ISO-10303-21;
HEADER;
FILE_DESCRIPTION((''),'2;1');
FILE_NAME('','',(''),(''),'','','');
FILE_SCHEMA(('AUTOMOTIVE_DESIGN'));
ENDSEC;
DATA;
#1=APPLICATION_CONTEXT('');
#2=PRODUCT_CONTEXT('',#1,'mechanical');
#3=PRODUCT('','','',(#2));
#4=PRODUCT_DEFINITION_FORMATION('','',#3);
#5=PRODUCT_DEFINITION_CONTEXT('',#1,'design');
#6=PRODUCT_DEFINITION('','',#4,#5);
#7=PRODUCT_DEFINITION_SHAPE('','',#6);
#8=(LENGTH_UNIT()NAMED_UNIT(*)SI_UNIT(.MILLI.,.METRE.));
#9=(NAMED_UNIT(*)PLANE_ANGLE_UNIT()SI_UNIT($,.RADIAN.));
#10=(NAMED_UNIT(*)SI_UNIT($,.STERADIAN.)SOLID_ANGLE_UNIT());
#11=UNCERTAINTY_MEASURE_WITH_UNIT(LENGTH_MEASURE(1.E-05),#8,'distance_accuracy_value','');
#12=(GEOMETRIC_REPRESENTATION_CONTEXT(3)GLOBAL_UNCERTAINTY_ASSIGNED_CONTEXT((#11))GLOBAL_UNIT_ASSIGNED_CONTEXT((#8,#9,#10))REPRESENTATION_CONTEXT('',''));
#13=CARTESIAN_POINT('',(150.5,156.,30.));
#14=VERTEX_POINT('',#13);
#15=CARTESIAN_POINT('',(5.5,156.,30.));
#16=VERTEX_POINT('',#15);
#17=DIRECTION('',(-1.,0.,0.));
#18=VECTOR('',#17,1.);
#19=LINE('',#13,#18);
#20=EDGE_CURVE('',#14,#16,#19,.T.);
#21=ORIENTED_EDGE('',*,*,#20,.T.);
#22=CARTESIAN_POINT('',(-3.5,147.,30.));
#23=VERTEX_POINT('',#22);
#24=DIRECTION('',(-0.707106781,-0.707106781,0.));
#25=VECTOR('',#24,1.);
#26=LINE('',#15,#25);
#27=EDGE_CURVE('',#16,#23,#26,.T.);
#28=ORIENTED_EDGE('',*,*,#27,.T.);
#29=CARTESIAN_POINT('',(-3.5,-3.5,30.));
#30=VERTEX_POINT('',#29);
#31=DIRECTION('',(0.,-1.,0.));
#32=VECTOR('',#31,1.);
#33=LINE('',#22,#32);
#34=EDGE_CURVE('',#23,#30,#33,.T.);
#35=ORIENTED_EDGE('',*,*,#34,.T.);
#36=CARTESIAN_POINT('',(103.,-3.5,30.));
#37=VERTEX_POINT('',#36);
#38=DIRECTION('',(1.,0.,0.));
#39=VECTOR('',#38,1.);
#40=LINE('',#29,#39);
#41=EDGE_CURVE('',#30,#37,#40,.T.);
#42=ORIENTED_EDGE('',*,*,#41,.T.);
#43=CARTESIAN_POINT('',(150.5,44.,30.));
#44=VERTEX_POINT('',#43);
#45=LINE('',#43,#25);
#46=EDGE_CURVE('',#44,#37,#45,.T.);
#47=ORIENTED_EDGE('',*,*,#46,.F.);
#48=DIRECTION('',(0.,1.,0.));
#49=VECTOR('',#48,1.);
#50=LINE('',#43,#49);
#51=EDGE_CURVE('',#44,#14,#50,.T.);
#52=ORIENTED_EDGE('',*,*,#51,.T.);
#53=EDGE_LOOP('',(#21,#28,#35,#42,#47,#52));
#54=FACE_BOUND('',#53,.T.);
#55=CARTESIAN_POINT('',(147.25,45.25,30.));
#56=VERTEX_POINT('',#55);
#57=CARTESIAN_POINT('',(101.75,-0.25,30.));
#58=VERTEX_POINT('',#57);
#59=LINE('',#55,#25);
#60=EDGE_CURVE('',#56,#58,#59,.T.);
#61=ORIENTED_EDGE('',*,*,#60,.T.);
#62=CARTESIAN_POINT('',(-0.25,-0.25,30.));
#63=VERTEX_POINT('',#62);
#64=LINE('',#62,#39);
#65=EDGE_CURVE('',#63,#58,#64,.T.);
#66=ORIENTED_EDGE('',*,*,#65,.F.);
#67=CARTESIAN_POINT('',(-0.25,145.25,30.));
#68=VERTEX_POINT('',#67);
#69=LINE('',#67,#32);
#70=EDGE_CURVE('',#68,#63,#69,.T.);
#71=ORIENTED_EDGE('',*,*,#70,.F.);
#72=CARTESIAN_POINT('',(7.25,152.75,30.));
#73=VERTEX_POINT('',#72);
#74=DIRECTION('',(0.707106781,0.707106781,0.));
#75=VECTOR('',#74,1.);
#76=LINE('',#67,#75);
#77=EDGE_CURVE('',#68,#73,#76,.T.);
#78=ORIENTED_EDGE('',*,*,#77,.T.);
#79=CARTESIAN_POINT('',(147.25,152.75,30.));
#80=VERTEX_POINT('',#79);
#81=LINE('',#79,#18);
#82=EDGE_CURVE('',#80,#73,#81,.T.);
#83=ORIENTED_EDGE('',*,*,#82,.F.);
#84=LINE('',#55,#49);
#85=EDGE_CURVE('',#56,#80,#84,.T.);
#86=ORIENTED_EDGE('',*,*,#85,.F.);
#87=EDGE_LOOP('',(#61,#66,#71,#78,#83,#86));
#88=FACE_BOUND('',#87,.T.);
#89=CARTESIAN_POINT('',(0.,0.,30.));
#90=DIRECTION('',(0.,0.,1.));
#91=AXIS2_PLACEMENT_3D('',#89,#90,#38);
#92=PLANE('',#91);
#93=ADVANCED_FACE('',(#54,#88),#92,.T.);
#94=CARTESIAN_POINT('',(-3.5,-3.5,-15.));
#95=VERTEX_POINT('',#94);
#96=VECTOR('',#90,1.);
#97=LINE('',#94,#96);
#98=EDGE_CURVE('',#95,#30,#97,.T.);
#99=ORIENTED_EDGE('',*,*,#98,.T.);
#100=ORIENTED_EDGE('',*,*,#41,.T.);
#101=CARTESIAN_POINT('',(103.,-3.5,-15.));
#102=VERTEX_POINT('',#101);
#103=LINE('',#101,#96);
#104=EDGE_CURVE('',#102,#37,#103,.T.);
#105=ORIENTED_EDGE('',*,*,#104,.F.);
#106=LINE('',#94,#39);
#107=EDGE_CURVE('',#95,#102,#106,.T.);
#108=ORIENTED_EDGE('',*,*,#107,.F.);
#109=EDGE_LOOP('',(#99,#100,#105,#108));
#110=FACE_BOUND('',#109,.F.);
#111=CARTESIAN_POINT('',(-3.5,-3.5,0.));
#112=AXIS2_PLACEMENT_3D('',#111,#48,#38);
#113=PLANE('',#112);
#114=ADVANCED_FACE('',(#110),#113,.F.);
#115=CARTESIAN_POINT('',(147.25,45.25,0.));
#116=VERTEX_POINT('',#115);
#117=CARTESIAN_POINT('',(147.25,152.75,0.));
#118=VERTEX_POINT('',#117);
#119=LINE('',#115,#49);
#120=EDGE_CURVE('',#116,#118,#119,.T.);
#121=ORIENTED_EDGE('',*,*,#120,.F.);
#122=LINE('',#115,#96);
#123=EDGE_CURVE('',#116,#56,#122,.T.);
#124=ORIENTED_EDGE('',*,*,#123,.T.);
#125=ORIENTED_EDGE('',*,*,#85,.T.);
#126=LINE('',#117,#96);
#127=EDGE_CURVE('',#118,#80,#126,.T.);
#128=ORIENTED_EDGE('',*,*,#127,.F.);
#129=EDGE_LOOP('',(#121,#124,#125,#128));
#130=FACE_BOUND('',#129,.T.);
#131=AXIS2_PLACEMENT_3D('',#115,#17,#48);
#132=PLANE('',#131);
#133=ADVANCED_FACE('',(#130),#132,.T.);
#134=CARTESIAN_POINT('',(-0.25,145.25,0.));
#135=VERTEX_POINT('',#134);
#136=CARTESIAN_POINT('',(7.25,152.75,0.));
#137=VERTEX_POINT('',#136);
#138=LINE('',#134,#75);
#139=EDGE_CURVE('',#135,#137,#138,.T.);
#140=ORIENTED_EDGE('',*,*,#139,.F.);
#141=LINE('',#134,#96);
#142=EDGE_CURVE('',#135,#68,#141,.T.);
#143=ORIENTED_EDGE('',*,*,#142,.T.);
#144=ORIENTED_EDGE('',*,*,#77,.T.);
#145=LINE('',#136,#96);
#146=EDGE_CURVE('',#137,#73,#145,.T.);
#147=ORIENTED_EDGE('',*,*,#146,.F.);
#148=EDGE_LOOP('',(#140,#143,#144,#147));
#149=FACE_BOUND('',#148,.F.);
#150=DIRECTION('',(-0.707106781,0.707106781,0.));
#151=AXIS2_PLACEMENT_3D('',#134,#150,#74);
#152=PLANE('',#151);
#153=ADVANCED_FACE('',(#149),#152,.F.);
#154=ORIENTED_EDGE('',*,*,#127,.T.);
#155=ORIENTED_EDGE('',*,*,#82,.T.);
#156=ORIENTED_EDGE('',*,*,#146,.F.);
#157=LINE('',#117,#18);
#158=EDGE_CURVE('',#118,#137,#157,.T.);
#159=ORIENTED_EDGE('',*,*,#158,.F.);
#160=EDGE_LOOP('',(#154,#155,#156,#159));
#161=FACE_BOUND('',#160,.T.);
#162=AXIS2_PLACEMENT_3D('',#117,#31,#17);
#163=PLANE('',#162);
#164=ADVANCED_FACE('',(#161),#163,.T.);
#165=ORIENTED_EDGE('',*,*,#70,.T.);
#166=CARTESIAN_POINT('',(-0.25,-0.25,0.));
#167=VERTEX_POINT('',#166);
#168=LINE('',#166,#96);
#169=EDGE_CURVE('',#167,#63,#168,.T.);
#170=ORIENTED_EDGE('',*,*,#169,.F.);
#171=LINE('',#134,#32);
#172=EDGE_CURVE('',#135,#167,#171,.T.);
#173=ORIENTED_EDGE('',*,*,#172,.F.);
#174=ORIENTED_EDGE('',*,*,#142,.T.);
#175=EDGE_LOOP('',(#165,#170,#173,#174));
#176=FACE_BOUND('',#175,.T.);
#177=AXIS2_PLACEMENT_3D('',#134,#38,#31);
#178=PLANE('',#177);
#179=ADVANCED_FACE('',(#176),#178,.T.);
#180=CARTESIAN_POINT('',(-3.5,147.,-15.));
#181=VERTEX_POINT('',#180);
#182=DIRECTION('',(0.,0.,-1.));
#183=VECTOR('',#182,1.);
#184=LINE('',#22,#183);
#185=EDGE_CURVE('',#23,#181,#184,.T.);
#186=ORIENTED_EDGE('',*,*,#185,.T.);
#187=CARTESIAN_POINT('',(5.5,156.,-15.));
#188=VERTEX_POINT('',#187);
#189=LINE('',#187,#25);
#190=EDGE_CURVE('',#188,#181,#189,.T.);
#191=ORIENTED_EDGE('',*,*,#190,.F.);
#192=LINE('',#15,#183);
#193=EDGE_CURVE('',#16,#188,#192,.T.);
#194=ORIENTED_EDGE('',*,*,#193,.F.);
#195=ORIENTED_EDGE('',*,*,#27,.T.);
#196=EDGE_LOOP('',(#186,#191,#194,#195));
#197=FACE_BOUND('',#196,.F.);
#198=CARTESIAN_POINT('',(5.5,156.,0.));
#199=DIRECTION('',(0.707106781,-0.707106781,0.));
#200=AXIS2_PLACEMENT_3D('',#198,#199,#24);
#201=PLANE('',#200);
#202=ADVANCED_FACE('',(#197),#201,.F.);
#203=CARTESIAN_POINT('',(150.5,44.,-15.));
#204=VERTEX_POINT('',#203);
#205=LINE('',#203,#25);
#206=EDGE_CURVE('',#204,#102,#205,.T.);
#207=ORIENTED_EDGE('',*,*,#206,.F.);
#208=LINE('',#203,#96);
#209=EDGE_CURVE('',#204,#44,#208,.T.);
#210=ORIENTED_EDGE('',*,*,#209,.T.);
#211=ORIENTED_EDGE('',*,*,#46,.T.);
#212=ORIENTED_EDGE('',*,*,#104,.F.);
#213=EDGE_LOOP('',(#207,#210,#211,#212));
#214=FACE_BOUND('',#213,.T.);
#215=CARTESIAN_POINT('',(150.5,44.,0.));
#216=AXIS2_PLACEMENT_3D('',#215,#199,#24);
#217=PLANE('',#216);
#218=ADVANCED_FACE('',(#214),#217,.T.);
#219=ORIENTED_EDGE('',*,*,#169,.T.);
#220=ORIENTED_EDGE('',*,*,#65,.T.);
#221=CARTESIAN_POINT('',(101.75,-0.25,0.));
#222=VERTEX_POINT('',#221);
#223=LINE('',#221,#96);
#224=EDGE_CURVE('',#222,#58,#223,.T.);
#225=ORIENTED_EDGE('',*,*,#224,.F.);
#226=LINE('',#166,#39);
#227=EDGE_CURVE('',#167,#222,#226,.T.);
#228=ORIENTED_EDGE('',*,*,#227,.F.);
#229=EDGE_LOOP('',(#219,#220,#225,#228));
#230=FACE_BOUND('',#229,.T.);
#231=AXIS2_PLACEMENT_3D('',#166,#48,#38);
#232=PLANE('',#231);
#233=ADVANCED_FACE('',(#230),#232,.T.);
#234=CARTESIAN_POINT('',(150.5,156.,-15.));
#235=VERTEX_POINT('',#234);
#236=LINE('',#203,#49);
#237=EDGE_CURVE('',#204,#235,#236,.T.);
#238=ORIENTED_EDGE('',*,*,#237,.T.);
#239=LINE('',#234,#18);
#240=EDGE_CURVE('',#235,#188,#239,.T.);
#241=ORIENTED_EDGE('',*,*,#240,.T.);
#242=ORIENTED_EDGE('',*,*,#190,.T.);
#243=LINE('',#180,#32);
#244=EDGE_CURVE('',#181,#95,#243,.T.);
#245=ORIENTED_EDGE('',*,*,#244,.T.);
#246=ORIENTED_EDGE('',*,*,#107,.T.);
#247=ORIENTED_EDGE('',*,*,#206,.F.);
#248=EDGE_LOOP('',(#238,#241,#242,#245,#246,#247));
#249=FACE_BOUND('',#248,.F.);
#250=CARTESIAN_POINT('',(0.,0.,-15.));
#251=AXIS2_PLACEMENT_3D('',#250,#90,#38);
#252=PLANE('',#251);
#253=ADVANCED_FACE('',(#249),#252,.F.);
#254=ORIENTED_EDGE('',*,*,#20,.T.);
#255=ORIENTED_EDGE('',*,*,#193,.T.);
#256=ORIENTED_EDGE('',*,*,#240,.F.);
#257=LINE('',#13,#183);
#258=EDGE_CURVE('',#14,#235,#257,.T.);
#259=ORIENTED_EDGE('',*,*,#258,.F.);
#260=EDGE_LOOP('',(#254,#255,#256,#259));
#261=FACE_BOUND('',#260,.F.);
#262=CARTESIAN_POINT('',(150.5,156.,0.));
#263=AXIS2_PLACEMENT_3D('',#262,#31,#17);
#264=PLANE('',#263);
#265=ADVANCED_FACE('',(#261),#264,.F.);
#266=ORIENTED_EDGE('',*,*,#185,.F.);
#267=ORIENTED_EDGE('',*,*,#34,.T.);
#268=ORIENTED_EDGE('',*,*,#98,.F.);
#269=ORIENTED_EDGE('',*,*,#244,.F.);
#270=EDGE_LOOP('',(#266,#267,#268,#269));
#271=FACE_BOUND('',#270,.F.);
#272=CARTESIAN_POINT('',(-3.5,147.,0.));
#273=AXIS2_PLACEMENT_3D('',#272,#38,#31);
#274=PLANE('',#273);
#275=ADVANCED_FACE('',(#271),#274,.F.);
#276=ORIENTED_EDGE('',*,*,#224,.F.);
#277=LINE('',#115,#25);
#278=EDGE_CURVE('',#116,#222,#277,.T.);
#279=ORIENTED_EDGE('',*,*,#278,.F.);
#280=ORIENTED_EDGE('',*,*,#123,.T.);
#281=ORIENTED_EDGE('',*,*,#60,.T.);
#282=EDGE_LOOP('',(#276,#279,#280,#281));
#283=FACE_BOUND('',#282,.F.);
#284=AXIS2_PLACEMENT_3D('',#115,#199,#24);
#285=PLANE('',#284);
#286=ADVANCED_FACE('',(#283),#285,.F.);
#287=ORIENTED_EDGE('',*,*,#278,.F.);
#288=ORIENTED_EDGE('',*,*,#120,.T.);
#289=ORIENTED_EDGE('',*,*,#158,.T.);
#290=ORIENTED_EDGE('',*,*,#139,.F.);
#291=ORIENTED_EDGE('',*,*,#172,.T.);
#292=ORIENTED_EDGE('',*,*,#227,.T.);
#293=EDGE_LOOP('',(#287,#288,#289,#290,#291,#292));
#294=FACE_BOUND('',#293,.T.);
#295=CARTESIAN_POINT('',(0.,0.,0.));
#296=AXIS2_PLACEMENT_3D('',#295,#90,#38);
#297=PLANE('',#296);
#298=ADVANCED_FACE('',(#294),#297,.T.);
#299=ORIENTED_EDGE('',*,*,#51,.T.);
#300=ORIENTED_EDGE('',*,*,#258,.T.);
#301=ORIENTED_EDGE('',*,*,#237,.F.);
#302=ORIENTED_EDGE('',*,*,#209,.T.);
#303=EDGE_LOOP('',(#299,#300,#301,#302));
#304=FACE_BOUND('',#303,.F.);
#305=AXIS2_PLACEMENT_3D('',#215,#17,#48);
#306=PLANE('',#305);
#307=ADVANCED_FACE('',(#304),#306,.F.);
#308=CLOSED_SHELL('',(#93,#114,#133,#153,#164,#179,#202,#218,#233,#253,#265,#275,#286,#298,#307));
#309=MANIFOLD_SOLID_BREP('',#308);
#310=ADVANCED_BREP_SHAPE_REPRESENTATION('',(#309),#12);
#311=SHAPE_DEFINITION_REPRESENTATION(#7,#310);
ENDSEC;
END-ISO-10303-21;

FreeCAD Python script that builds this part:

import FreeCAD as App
import Part
import Sketcher

V = App.Vector

doc = App.newDocument("Part")
params = doc.addObject("Spreadsheet::Sheet", "Params")
for row, (alias, value) in enumerate([
    ("sketch1_width", "145 mm"),
    ("sketch1_height", "112 mm"),
    ("pad1_length", "15 mm"),
    ("sketch2_width", "145 mm"),
    ("sketch2_height", "112 mm"),
    ("pad2_length", "30 mm"),
], start=1):
    params.set(f"A{row}", alias)
    params.set(f"B{row}", "=" + value)
    params.setAlias(f"B{row}", alias)

body = doc.addObject("PartDesign::Body", "Body")

sketch1 = body.newObject("Sketcher::SketchObject", "Sketch")
sketch1.AttachmentSupport = (doc.getObject("XY_Plane"), [""])
sketch1.MapMode = "FlatFace"
sketch1.addGeometry(Part.LineSegment(V(-4, 147, 0), V(-4, -4, 0)), False)
sketch1.addGeometry(Part.LineSegment(V(-4, -4, 0), V(103, -4, 0)), False)
sketch1.addGeometry(Part.LineSegment(V(103, -4, 0), V(150, 44, 0)), False)
sketch1.addGeometry(Part.LineSegment(V(150, 44, 0), V(150, 156, 0)), False)
sketch1.addGeometry(Part.LineSegment(V(150, 156, 0), V(6, 156, 0)), False)
sketch1.addGeometry(Part.LineSegment(V(6, 156, 0), V(-4, 147, 0)), False)
sketch1.addConstraint(Sketcher.Constraint("Coincident", 0, 2, 1, 1))
sketch1.addConstraint(Sketcher.Constraint("Coincident", 1, 2, 2, 1))
sketch1.addConstraint(Sketcher.Constraint("Coincident", 2, 2, 3, 1))
sketch1.addConstraint(Sketcher.Constraint("Coincident", 3, 2, 4, 1))
sketch1.addConstraint(Sketcher.Constraint("Coincident", 4, 2, 5, 1))
sketch1.addConstraint(Sketcher.Constraint("Coincident", 5, 2, 0, 1))
sketch1.addConstraint(Sketcher.Constraint("Vertical", 0))
sketch1.addConstraint(Sketcher.Constraint("Horizontal", 1))
sketch1.addConstraint(Sketcher.Constraint("Vertical", 3))
sketch1.addConstraint(Sketcher.Constraint("Horizontal", 4))
sketch1.addConstraint(Sketcher.Constraint("Parallel", 2, 5))
sketch1.addConstraint(Sketcher.Constraint("DistanceX", 0, 2, 4, 2, 9.0))
sketch1.addConstraint(Sketcher.Constraint("DistanceY", 5, 2, 4, 2, 9.0))
sketch1.addConstraint(Sketcher.Constraint("DistanceX", 1, 2, 2, 2, 47.5))
sketch1.addConstraint(Sketcher.Constraint("DistanceX", 4, 2, 4, 1, 145.0))
sketch1.addConstraint(Sketcher.Constraint("DistanceY", 3, 1, 3, 2, 112.0))
sketch1.addConstraint(Sketcher.Constraint("DistanceX", -1, 1, 1, 2, 103.0))
sketch1.addConstraint(Sketcher.Constraint("DistanceY", -1, 1, 2, 2, 44.0))
sketch1.setExpression("Constraints[14]", "Params.sketch1_width")
sketch1.setExpression("Constraints[15]", "Params.sketch1_height")
pad1 = body.newObject("PartDesign::Pad", "Pad")
pad1.Profile = sketch1
pad1.setExpression("Length", "Params.pad1_length")
pad1.Reversed = True

sketch2 = body.newObject("Sketcher::SketchObject", "Sketch001")
sketch2.AttachmentSupport = (doc.getObject("XY_Plane"), [""])
sketch2.MapMode = "FlatFace"
sketch2.addGeometry(Part.LineSegment(V(-4, 147, 0), V(-4, -4, 0)), False)
sketch2.addGeometry(Part.LineSegment(V(-4, -4, 0), V(103, -4, 0)), False)
sketch2.addGeometry(Part.LineSegment(V(103, -4, 0), V(150, 44, 0)), False)
sketch2.addGeometry(Part.LineSegment(V(150, 44, 0), V(150, 156, 0)), False)
sketch2.addGeometry(Part.LineSegment(V(150, 156, 0), V(6, 156, 0)), False)
sketch2.addGeometry(Part.LineSegment(V(6, 156, 0), V(-4, 147, 0)), False)
sketch2.addGeometry(Part.LineSegment(V(102, 0, 0), V(0, 0, 0)), False)
sketch2.addGeometry(Part.LineSegment(V(0, 0, 0), V(0, 145, 0)), False)
sketch2.addGeometry(Part.LineSegment(V(0, 145, 0), V(7, 153, 0)), False)
sketch2.addGeometry(Part.LineSegment(V(7, 153, 0), V(147, 153, 0)), False)
sketch2.addGeometry(Part.LineSegment(V(147, 153, 0), V(147, 45, 0)), False)
sketch2.addGeometry(Part.LineSegment(V(147, 45, 0), V(102, 0, 0)), False)
sketch2.addConstraint(Sketcher.Constraint("Coincident", 0, 2, 1, 1))
sketch2.addConstraint(Sketcher.Constraint("Coincident", 1, 2, 2, 1))
sketch2.addConstraint(Sketcher.Constraint("Coincident", 2, 2, 3, 1))
sketch2.addConstraint(Sketcher.Constraint("Coincident", 3, 2, 4, 1))
sketch2.addConstraint(Sketcher.Constraint("Coincident", 4, 2, 5, 1))
sketch2.addConstraint(Sketcher.Constraint("Coincident", 5, 2, 0, 1))
sketch2.addConstraint(Sketcher.Constraint("Coincident", 6, 2, 7, 1))
sketch2.addConstraint(Sketcher.Constraint("Coincident", 7, 2, 8, 1))
sketch2.addConstraint(Sketcher.Constraint("Coincident", 8, 2, 9, 1))
sketch2.addConstraint(Sketcher.Constraint("Coincident", 9, 2, 10, 1))
sketch2.addConstraint(Sketcher.Constraint("Coincident", 10, 2, 11, 1))
sketch2.addConstraint(Sketcher.Constraint("Coincident", 11, 2, 6, 1))
sketch2.addConstraint(Sketcher.Constraint("Vertical", 0))
sketch2.addConstraint(Sketcher.Constraint("Horizontal", 1))
sketch2.addConstraint(Sketcher.Constraint("Vertical", 3))
sketch2.addConstraint(Sketcher.Constraint("Horizontal", 4))
sketch2.addConstraint(Sketcher.Constraint("Horizontal", 6))
sketch2.addConstraint(Sketcher.Constraint("Vertical", 7))
sketch2.addConstraint(Sketcher.Constraint("Horizontal", 9))
sketch2.addConstraint(Sketcher.Constraint("Vertical", 10))
sketch2.addConstraint(Sketcher.Constraint("Parallel", 2, 5))
sketch2.addConstraint(Sketcher.Constraint("Parallel", 5, 8))
sketch2.addConstraint(Sketcher.Constraint("Parallel", 8, 11))
sketch2.addConstraint(Sketcher.Constraint("DistanceX", 0, 2, 4, 2, 9.0))
sketch2.addConstraint(Sketcher.Constraint("DistanceY", 5, 2, 4, 2, 9.0))
sketch2.addConstraint(Sketcher.Constraint("DistanceY", 6, 2, 8, 2, 153.0))
sketch2.addConstraint(Sketcher.Constraint("DistanceX", 1, 2, 2, 2, 47.5))
sketch2.addConstraint(Sketcher.Constraint("DistanceX", 7, 2, 8, 2, 7.5))
sketch2.addConstraint(Sketcher.Constraint("DistanceX", 7, 2, 9, 2, 147.5))
sketch2.addConstraint(Sketcher.Constraint("DistanceY", 6, 2, 10, 2, 45.5))
sketch2.addConstraint(Sketcher.Constraint("DistanceX", 4, 2, 4, 1, 145.0))
sketch2.addConstraint(Sketcher.Constraint("DistanceY", 3, 1, 3, 2, 112.0))
sketch2.addConstraint(Sketcher.Constraint("DistanceX", 0, 2, 6, 2, 3.25))
sketch2.addConstraint(Sketcher.Constraint("DistanceY", 0, 2, 6, 2, 3.25))
sketch2.addConstraint(Sketcher.Constraint("DistanceX", -1, 1, 1, 2, 103.0))
sketch2.addConstraint(Sketcher.Constraint("DistanceY", -1, 1, 2, 2, 44.0))
sketch2.setExpression("Constraints[30]", "Params.sketch2_width")
sketch2.setExpression("Constraints[31]", "Params.sketch2_height")
pad2 = body.newObject("PartDesign::Pad", "Pad001")
pad2.Profile = sketch2
pad2.setExpression("Length", "Params.pad2_length")

doc.recompute()
